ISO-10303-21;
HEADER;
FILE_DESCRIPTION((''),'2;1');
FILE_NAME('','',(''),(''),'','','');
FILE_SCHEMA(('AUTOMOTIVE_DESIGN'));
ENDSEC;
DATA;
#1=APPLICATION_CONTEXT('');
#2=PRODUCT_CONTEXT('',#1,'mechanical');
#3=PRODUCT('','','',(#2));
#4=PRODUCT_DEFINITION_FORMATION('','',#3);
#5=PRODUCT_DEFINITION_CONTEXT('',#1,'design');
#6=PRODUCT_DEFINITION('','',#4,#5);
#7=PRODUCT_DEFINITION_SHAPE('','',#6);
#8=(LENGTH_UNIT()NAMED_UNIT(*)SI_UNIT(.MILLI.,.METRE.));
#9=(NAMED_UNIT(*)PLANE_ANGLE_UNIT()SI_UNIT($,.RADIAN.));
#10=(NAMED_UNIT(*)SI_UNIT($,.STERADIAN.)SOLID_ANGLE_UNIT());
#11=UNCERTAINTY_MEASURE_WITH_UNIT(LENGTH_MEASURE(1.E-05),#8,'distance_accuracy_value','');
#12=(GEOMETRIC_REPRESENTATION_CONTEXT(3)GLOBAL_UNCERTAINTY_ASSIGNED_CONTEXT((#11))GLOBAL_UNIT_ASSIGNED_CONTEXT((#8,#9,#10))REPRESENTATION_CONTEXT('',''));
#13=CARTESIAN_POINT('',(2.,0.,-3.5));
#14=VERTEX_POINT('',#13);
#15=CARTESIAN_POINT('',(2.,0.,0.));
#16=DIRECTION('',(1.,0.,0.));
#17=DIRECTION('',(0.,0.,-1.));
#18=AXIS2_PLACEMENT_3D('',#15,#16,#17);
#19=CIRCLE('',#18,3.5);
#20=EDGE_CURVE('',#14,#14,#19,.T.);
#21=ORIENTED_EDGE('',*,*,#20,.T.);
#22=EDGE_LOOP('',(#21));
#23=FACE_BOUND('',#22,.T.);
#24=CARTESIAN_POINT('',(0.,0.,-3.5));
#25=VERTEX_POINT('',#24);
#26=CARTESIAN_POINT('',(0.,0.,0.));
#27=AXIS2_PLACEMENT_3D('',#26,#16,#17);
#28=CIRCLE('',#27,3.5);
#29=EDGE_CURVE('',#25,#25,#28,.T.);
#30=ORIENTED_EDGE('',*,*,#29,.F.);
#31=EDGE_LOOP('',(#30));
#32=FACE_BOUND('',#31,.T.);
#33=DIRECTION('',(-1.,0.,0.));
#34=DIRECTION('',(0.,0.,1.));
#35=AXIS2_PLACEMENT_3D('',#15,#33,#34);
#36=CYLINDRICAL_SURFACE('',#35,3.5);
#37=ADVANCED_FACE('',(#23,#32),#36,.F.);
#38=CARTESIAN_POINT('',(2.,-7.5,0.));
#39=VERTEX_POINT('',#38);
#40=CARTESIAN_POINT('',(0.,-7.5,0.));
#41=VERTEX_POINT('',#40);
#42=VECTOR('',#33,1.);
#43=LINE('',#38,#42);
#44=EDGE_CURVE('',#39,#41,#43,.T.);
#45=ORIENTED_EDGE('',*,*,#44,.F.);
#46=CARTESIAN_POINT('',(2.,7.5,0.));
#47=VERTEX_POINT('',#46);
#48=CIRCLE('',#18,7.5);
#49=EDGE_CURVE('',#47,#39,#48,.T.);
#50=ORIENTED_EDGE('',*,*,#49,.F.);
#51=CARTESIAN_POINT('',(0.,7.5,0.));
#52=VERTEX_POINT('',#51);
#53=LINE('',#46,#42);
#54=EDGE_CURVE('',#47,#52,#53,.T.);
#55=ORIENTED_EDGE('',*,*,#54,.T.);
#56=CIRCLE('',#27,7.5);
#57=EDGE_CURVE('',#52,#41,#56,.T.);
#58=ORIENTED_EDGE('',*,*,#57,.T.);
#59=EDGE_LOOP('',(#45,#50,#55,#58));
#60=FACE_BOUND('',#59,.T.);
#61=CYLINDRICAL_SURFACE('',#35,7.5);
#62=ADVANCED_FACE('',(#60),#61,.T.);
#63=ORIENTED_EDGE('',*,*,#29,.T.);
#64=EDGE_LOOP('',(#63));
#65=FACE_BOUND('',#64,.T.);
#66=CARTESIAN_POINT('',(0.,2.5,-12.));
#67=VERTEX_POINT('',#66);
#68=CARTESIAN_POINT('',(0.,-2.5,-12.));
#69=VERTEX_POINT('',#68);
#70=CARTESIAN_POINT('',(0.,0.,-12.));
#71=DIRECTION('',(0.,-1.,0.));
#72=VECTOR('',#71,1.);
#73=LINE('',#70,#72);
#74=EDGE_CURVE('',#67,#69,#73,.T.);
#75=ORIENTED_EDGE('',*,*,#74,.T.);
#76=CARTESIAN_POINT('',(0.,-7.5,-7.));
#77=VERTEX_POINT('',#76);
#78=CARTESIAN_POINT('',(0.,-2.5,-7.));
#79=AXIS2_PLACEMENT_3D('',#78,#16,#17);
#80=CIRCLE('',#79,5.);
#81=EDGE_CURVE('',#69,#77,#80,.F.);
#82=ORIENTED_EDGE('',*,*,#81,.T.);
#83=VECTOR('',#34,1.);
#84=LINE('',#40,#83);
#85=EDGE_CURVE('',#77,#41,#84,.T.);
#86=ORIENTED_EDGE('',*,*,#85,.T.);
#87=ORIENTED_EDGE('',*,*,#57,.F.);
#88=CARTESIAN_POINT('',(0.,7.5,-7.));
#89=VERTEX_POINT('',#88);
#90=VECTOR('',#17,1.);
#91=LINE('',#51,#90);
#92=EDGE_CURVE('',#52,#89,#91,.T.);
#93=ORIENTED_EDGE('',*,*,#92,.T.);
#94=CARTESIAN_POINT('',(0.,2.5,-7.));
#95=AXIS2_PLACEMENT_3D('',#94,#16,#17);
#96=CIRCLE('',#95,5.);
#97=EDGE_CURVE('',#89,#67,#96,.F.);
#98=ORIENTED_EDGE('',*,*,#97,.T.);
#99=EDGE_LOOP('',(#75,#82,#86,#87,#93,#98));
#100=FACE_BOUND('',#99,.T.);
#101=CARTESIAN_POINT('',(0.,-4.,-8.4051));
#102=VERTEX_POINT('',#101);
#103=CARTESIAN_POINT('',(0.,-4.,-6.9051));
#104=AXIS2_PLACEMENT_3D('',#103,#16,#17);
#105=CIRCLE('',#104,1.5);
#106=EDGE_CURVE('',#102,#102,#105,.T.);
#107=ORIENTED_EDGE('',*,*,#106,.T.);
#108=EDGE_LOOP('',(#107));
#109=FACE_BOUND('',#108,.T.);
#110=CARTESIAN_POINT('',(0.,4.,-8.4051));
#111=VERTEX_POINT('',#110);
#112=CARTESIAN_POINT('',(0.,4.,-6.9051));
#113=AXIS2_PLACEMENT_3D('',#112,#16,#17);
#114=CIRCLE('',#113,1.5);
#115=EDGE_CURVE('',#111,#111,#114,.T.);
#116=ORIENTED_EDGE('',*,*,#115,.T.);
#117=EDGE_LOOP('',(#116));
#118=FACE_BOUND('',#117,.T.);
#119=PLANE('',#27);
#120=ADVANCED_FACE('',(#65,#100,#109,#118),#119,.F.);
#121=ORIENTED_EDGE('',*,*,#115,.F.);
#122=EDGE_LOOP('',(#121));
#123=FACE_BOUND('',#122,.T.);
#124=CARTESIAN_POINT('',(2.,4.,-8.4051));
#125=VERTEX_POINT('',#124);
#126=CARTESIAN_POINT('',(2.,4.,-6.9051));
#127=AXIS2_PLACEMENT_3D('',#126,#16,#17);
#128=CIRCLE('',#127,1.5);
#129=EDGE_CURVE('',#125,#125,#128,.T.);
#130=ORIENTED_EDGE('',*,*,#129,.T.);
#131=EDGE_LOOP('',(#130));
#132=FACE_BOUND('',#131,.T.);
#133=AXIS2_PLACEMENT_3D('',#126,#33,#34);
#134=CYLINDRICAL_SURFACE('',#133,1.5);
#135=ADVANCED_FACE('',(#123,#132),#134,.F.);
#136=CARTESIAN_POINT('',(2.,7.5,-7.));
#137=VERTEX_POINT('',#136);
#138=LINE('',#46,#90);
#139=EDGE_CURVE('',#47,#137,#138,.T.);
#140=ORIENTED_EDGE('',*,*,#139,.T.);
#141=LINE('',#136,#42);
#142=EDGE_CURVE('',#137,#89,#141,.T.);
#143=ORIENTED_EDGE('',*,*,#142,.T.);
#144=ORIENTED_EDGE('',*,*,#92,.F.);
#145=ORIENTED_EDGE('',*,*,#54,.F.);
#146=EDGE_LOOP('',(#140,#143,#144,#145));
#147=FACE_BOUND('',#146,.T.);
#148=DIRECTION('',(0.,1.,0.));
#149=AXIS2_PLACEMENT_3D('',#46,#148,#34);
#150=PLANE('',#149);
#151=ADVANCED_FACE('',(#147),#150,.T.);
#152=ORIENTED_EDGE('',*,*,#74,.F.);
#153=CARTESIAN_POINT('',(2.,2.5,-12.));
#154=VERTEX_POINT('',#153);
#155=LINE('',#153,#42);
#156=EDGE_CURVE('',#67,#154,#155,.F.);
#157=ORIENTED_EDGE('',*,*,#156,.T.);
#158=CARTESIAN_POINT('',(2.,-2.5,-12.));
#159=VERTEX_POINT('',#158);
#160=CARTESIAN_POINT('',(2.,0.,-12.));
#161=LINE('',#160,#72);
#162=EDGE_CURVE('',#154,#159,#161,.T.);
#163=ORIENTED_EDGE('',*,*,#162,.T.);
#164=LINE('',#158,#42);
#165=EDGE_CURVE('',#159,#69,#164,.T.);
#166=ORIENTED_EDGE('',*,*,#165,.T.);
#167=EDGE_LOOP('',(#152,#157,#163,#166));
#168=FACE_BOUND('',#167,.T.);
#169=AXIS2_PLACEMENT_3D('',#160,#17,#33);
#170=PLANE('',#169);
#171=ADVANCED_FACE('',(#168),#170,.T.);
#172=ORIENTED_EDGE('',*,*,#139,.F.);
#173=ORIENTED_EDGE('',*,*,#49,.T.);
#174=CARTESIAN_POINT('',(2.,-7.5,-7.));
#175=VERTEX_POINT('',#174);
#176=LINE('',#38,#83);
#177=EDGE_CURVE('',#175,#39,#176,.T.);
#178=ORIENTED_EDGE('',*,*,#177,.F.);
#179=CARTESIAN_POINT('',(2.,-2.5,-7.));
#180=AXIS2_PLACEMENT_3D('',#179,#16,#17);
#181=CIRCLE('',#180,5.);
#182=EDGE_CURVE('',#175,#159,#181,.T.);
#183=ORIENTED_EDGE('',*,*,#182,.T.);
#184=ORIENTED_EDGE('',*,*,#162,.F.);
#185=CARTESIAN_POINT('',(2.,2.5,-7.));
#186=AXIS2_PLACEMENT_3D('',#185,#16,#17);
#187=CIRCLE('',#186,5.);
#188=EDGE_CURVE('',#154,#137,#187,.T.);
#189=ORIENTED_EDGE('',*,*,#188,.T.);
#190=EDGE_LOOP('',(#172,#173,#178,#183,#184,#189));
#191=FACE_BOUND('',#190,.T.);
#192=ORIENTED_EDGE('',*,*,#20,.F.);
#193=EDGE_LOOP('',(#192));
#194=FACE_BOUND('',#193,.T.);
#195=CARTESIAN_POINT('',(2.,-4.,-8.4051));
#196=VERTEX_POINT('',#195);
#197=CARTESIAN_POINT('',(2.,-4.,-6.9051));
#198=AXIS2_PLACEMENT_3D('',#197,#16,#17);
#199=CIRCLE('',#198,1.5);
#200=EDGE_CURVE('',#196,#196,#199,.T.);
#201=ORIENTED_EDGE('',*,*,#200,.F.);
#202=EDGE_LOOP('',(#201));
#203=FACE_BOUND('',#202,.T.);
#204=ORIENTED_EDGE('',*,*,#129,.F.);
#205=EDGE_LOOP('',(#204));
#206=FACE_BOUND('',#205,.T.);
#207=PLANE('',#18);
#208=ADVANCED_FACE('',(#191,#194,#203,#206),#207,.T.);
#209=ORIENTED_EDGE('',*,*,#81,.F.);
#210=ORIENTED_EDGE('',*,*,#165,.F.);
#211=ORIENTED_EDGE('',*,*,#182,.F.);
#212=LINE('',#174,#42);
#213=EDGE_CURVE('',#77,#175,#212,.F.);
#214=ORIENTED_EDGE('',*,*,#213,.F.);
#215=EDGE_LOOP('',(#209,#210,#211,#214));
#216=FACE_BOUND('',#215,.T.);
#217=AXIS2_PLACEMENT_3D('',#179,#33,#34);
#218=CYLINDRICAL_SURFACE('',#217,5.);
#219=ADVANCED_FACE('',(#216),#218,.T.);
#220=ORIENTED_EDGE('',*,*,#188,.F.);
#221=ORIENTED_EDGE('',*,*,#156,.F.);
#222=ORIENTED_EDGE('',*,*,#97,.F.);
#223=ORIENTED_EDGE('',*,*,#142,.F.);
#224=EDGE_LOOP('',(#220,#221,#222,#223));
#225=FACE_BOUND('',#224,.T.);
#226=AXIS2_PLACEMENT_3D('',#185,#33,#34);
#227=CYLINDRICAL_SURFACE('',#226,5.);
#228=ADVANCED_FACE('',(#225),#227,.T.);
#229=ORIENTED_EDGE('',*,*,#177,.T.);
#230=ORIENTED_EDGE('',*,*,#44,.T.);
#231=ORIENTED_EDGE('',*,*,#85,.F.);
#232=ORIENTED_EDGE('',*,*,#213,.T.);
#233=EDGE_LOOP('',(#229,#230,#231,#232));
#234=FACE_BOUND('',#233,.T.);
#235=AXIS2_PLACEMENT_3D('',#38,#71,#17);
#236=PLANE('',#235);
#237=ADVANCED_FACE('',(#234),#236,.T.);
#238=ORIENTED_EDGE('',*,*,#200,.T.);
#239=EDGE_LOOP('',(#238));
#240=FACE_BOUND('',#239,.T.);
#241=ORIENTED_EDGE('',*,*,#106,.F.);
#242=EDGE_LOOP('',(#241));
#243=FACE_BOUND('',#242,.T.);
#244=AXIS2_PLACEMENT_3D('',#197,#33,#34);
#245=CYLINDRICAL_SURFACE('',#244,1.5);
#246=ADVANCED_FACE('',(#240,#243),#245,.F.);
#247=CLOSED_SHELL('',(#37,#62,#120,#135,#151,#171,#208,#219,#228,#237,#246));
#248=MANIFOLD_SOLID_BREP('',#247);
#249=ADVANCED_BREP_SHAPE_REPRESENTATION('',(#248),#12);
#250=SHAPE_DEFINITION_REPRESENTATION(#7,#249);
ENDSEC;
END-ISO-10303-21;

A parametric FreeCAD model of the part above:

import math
import FreeCAD as App
import Part
import Sketcher


def edges_at(feature, points):
    """Names of the edges that pass closest to the given points."""
    edges = feature.Shape.Edges
    near = lambda p: min(range(len(edges)), key=lambda i: edges[i].distToShape(Part.Vertex(*p))[0])
    return sorted({f"Edge{near(p) + 1}" for p in points})

doc = App.newDocument("Part")
body = doc.addObject("PartDesign::Body", "Body")

# Sketch on YZ plane
sketch1 = doc.addObject("Sketcher::SketchObject", "Sketch")
body.addObject(sketch1)
sketch1.AttachmentSupport = (doc.YZ_Plane, [""])
sketch1.MapMode = "FlatFace"
sketch1.addGeometry([
    Part.LineSegment(App.Vector(7.5, -12, 0), App.Vector(7.5, 0, 0)),  # 0
    Part.ArcOfCircle(Part.Circle(App.Vector(0, 0, 0), App.Vector(0, 0, 1), 7.5), math.radians(0), math.radians(180)),  # 1
    Part.LineSegment(App.Vector(-7.5, 0, 0), App.Vector(-7.5, -12, 0)),  # 2
    Part.LineSegment(App.Vector(-7.5, -12, 0), App.Vector(7.5, -12, 0)),  # 3
    Part.Circle(App.Vector(-4, -6.9, 0), App.Vector(0, 0, 1), 1.5),  # 4
    Part.Circle(App.Vector(4, -6.9, 0), App.Vector(0, 0, 1), 1.5),  # 5
    Part.Circle(App.Vector(0, 0, 0), App.Vector(0, 0, 1), 3.5),  # 6
], False)
sketch1.addConstraint([
    Sketcher.Constraint("Tangent", 0, 2, 1, 1),
    Sketcher.Constraint("Tangent", 1, 2, 2, 1),
    Sketcher.Constraint("Coincident", 2, 2, 3, 1),
    Sketcher.Constraint("Coincident", 3, 2, 0, 1),
    Sketcher.Constraint("Vertical", 0),
    Sketcher.Constraint("Vertical", 2),
    Sketcher.Constraint("Horizontal", 3),
    Sketcher.Constraint("Coincident", 1, 3, -1, 1),
    Sketcher.Constraint("Coincident", 6, 3, -1, 1),
    Sketcher.Constraint("Equal", 4, 5),
    Sketcher.Constraint("Symmetric", 4, 3, 5, 3, -2),
    Sketcher.Constraint("Diameter", 4, 3.0),
    Sketcher.Constraint("Diameter", 6, 7.0),
    Sketcher.Constraint("Radius", 1, 7.5),
    Sketcher.Constraint("DistanceY", 0, 1, 0, 2, 12.0),
    Sketcher.Constraint("DistanceX", 4, 3, -1, 1, 4.0),
    Sketcher.Constraint("DistanceY", 4, 3, -1, 1, 6.9051),
])
pad1 = doc.addObject("PartDesign::Pad", "Pad")
body.addObject(pad1)
pad1.Profile = sketch1
pad1.Length = 2
doc.recompute()

fillet = doc.addObject("PartDesign::Fillet", "Fillet")
body.addObject(fillet)
fillet.Base = (pad1, edges_at(pad1, [(1, 7.5, -12), (1, -7.5, -12)]))
fillet.Radius = 5

doc.recompute()
